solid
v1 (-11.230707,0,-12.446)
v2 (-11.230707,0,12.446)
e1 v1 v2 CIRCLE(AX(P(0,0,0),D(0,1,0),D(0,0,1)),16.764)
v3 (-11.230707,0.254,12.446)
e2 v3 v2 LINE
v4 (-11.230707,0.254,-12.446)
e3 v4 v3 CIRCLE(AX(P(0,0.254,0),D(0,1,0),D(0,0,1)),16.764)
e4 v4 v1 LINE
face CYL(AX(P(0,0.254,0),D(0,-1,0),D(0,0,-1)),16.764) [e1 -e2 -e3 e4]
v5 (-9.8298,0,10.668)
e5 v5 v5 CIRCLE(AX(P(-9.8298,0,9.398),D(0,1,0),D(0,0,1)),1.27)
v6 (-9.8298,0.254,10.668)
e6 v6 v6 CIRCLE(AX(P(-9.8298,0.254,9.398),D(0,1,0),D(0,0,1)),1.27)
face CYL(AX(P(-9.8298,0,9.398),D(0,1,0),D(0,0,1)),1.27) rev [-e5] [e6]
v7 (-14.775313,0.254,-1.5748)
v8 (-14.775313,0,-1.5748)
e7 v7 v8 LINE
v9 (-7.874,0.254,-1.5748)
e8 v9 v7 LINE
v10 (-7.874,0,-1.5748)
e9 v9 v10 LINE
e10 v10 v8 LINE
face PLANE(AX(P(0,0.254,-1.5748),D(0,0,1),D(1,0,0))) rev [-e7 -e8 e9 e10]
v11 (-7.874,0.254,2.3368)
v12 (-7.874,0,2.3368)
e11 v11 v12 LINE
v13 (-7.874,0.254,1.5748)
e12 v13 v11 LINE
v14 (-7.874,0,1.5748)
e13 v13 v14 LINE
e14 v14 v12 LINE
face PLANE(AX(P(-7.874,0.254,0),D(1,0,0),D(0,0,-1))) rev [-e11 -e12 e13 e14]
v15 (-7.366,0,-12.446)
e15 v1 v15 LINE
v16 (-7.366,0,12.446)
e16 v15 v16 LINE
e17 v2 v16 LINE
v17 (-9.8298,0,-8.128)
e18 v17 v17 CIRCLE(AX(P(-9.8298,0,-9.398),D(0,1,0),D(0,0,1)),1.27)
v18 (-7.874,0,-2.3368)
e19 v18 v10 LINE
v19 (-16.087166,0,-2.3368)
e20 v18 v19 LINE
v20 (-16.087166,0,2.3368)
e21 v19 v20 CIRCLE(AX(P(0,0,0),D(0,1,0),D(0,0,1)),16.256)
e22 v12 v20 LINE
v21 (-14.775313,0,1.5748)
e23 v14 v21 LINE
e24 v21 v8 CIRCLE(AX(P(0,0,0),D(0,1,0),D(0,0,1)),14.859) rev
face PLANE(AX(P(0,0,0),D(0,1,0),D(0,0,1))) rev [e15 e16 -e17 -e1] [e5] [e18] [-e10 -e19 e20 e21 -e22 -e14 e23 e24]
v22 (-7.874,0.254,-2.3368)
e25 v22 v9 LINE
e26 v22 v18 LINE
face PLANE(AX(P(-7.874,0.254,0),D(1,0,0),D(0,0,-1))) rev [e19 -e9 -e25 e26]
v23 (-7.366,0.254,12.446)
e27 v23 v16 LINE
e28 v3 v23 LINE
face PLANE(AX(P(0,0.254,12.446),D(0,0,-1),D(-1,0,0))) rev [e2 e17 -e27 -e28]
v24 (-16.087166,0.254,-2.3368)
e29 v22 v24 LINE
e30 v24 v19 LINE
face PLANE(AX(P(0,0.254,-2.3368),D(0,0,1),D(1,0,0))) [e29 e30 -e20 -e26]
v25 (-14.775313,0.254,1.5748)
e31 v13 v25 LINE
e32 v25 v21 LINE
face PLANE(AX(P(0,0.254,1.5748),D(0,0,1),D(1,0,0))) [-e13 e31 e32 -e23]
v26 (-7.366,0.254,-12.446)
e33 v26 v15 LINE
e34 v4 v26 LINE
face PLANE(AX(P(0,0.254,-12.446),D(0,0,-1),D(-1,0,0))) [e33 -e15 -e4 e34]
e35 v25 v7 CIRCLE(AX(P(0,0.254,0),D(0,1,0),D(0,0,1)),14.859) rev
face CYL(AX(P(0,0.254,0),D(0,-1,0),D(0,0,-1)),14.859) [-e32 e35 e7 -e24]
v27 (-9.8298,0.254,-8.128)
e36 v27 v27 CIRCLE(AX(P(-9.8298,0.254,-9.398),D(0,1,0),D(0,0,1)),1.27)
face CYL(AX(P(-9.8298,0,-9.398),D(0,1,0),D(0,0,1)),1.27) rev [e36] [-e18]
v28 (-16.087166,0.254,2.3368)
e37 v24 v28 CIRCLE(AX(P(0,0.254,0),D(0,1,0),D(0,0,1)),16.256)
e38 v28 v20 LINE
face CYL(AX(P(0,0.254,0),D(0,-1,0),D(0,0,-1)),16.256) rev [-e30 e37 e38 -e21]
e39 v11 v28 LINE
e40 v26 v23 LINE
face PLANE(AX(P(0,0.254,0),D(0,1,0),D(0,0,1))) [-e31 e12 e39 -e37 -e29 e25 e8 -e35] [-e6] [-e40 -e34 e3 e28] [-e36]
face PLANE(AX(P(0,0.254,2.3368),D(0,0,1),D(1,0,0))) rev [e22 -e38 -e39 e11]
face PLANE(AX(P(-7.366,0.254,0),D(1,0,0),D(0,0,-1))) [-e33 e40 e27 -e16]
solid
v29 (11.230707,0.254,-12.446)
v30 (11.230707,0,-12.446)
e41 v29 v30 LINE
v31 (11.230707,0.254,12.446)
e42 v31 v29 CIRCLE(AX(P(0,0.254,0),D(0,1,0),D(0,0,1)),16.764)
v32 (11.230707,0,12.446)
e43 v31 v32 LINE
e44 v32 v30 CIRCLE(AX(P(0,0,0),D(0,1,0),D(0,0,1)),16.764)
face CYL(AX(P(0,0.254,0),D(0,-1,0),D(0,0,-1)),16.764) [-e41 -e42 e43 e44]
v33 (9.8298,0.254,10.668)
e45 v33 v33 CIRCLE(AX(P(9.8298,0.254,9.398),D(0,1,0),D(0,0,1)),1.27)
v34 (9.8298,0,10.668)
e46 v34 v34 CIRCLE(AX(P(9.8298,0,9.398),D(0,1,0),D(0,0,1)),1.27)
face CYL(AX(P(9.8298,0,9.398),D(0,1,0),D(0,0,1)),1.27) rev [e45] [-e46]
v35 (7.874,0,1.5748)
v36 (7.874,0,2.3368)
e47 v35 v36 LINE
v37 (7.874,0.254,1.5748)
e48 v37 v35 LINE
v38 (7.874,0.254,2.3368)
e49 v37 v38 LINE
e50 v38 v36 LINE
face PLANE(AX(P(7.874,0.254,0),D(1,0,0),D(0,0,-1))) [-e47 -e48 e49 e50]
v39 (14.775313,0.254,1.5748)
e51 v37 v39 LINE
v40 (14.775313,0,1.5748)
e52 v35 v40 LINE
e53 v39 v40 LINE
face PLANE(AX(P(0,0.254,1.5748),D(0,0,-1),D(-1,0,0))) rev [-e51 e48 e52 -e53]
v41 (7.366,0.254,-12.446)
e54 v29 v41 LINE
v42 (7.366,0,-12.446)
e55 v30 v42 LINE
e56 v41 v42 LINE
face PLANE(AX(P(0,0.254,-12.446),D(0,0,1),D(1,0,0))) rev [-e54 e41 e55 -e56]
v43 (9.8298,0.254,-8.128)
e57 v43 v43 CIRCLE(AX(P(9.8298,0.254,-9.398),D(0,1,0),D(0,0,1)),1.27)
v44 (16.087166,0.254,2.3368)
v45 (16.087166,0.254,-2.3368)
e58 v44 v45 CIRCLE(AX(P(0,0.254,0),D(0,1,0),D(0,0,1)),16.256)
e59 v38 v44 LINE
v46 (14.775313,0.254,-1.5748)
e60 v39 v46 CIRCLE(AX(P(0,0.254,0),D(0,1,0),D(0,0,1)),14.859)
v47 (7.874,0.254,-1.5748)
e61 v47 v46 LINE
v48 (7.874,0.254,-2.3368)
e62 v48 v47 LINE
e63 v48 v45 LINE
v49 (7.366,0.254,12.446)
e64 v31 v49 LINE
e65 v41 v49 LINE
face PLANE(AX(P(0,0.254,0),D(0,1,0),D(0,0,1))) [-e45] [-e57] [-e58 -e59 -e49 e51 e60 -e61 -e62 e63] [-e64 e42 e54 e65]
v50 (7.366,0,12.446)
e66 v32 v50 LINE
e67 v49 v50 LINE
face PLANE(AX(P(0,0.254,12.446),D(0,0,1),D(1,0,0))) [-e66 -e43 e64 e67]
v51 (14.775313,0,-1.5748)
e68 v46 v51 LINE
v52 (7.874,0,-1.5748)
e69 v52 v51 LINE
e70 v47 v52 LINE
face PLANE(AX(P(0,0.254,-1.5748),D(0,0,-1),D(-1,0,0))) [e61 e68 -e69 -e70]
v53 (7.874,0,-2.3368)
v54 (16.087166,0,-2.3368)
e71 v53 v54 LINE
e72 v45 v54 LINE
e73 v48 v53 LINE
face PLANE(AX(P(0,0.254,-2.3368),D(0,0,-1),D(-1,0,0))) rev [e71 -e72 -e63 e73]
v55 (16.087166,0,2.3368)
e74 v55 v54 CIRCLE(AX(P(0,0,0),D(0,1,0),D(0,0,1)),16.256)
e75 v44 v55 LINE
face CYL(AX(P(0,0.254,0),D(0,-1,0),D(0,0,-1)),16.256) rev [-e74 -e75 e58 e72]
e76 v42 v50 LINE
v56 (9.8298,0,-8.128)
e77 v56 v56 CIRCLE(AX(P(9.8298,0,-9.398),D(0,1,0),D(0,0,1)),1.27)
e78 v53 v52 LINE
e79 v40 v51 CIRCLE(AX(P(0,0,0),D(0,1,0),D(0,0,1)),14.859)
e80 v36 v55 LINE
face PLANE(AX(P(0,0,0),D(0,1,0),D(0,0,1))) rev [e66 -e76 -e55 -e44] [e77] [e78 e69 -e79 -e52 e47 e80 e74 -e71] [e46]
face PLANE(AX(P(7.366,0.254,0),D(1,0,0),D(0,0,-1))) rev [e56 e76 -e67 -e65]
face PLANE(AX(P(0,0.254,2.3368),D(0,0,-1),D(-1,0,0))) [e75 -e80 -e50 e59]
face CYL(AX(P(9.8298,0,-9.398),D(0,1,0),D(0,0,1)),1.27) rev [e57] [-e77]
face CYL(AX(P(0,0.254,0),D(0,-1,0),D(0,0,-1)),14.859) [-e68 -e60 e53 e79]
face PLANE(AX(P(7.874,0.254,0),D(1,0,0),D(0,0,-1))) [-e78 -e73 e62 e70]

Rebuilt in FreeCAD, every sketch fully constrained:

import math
import FreeCAD as App
import Part
import Sketcher
Q = App.Units.Quantity

doc = App.newDocument("Part")
body = doc.addObject("PartDesign::Body", "Body")

# Sketch on XZ plane
sketch1 = body.newObject("Sketcher::SketchObject", "Sketch")
sketch1.AttachmentSupport = (doc.getObject("XZ_Plane"), [""])
sketch1.MapMode = "FlatFace"
sketch1.addGeometry(Part.LineSegment(App.Vector(7.4, 12.4, 0), App.Vector(11.2, 12.4, 0)), False)
sketch1.addGeometry(Part.ArcOfCircle(Part.Circle(App.Vector(0, 0, 0), App.Vector(0, 0, 1), 16.8), math.radians(-48), math.radians(48)), False)
sketch1.addGeometry(Part.LineSegment(App.Vector(11.2, -12.4, 0), App.Vector(7.4, -12.4, 0)), False)
sketch1.addGeometry(Part.LineSegment(App.Vector(7.4, -12.4, 0), App.Vector(7.4, 12.4, 0)), False)
sketch1.addGeometry(Part.LineSegment(App.Vector(7.9, 1.6, 0), App.Vector(14.8, 1.6, 0)), False)
sketch1.addGeometry(Part.ArcOfCircle(Part.Circle(App.Vector(0, 0, 0), App.Vector(0, 0, 1), 14.9), math.radians(-6.08), math.radians(6.08)), False)
sketch1.addGeometry(Part.LineSegment(App.Vector(14.8, -1.6, 0), App.Vector(7.9, -1.6, 0)), False)
sketch1.addGeometry(Part.LineSegment(App.Vector(7.9, -1.6, 0), App.Vector(7.9, -2.3, 0)), False)
sketch1.addGeometry(Part.LineSegment(App.Vector(7.9, -2.3, 0), App.Vector(16.1, -2.3, 0)), False)
sketch1.addGeometry(Part.ArcOfCircle(Part.Circle(App.Vector(0, 0, 0), App.Vector(0, 0, 1), 16.3), math.radians(-8.26), math.radians(8.26)), False)
sketch1.addGeometry(Part.LineSegment(App.Vector(16.1, 2.3, 0), App.Vector(7.9, 2.3, 0)), False)
sketch1.addGeometry(Part.LineSegment(App.Vector(7.9, 2.3, 0), App.Vector(7.9, 1.6, 0)), False)
sketch1.addConstraint(Sketcher.Constraint("Coincident", 0, 2, 1, 2))
sketch1.addConstraint(Sketcher.Constraint("Coincident", 1, 1, 2, 1))
sketch1.addConstraint(Sketcher.Constraint("Coincident", 2, 2, 3, 1))
sketch1.addConstraint(Sketcher.Constraint("Coincident", 3, 2, 0, 1))
sketch1.addConstraint(Sketcher.Constraint("Coincident", 4, 2, 5, 2))
sketch1.addConstraint(Sketcher.Constraint("Coincident", 5, 1, 6, 1))
sketch1.addConstraint(Sketcher.Constraint("Coincident", 6, 2, 7, 1))
sketch1.addConstraint(Sketcher.Constraint("Coincident", 7, 2, 8, 1))
sketch1.addConstraint(Sketcher.Constraint("Coincident", 8, 2, 9, 1))
sketch1.addConstraint(Sketcher.Constraint("Coincident", 9, 2, 10, 1))
sketch1.addConstraint(Sketcher.Constraint("Coincident", 10, 2, 11, 1))
sketch1.addConstraint(Sketcher.Constraint("Coincident", 11, 2, 4, 1))
sketch1.addConstraint(Sketcher.Constraint("Horizontal", 0))
sketch1.addConstraint(Sketcher.Constraint("Horizontal", 2))
sketch1.addConstraint(Sketcher.Constraint("Vertical", 3))
sketch1.addConstraint(Sketcher.Constraint("Horizontal", 4))
sketch1.addConstraint(Sketcher.Constraint("Horizontal", 6))
sketch1.addConstraint(Sketcher.Constraint("Vertical", 7))
sketch1.addConstraint(Sketcher.Constraint("Horizontal", 8))
sketch1.addConstraint(Sketcher.Constraint("Horizontal", 10))
sketch1.addConstraint(Sketcher.Constraint("Vertical", 11))
sketch1.addConstraint(Sketcher.Constraint("Coincident", 1, 3, -1, 1))
sketch1.addConstraint(Sketcher.Constraint("Coincident", 5, 3, -1, 1))
sketch1.addConstraint(Sketcher.Constraint("Coincident", 9, 3, -1, 1))
sketch1.addConstraint(Sketcher.Constraint("Symmetric", 7, 2, 10, 2, -1))
sketch1.addConstraint(Sketcher.Constraint("Vertical", 0, 2, 1, 1))
sketch1.addConstraint(Sketcher.Constraint("Vertical", 4, 2, 5, 1))
sketch1.addConstraint(Sketcher.Constraint("Radius", 1, Q("0.66 in")))
sketch1.addConstraint(Sketcher.Constraint("Radius", 9, Q("0.64 in")))
sketch1.addConstraint(Sketcher.Constraint("Radius", 5, Q("0.585 in")))
sketch1.addConstraint(Sketcher.Constraint("DistanceY", 3, 1, 3, 2, Q("0.98 in")))
sketch1.addConstraint(Sketcher.Constraint("DistanceY", 7, 2, 7, 1, Q("0.03 in")))
sketch1.addConstraint(Sketcher.Constraint("DistanceX", -1, 1, 2, 2, Q("0.29 in")))
sketch1.addConstraint(Sketcher.Constraint("DistanceX", -1, 1, 6, 2, Q("0.31 in")))
sketch1.addConstraint(Sketcher.Constraint("DistanceY", -1, 1, 4, 2, Q("0.062 in")))
pad1 = body.newObject("PartDesign::Pad", "Pad")
pad1.Profile = sketch1
pad1.Length = Q("0.01 in")
pad1.Reversed = True
body2 = doc.addObject("PartDesign::Body", "Body001")

# Sketch on XZ plane
sketch2 = body2.newObject("Sketcher::SketchObject", "Sketch001")
sketch2.AttachmentSupport = (doc.getObject("XZ_Plane001"), [""])
sketch2.MapMode = "FlatFace"
sketch2.addGeometry(Part.LineSegment(App.Vector(-7.4, -12.4, 0), App.Vector(-11.2, -12.4, 0)), False)
sketch2.addGeometry(Part.ArcOfCircle(Part.Circle(App.Vector(0, 0, 0), App.Vector(0, 0, 1), 16.8), math.radians(132), math.radians(228)), False)
sketch2.addGeometry(Part.LineSegment(App.Vector(-11.2, 12.4, 0), App.Vector(-7.4, 12.4, 0)), False)
sketch2.addGeometry(Part.LineSegment(App.Vector(-7.4, 12.4, 0), App.Vector(-7.4, -12.4, 0)), False)
sketch2.addGeometry(Part.LineSegment(App.Vector(-14.8, 1.6, 0), App.Vector(-7.9, 1.6, 0)), False)
sketch2.addGeometry(Part.LineSegment(App.Vector(-7.9, 1.6, 0), App.Vector(-7.9, 2.3, 0)), False)
sketch2.addGeometry(Part.LineSegment(App.Vector(-7.9, 2.3, 0), App.Vector(-16.1, 2.3, 0)), False)
sketch2.addGeometry(Part.ArcOfCircle(Part.Circle(App.Vector(0, 0, 0), App.Vector(0, 0, 1), 16.3), math.radians(171.74), math.radians(188.26)), False)
sketch2.addGeometry(Part.LineSegment(App.Vector(-16.1, -2.3, 0), App.Vector(-7.9, -2.3, 0)), False)
sketch2.addGeometry(Part.LineSegment(App.Vector(-7.9, -2.3, 0), App.Vector(-7.9, -1.6, 0)), False)
sketch2.addGeometry(Part.LineSegment(App.Vector(-7.9, -1.6, 0), App.Vector(-14.8, -1.6, 0)), False)
sketch2.addGeometry(Part.ArcOfCircle(Part.Circle(App.Vector(0, 0, 0), App.Vector(0, 0, 1), 14.9), math.radians(173.92), math.radians(186.08)), False)
sketch2.addConstraint(Sketcher.Constraint("Coincident", 0, 2, 1, 2))
sketch2.addConstraint(Sketcher.Constraint("Coincident", 1, 1, 2, 1))
sketch2.addConstraint(Sketcher.Constraint("Coincident", 2, 2, 3, 1))
sketch2.addConstraint(Sketcher.Constraint("Coincident", 3, 2, 0, 1))
sketch2.addConstraint(Sketcher.Constraint("Coincident", 4, 2, 5, 1))
sketch2.addConstraint(Sketcher.Constraint("Coincident", 5, 2, 6, 1))
sketch2.addConstraint(Sketcher.Constraint("Coincident", 6, 2, 7, 1))
sketch2.addConstraint(Sketcher.Constraint("Coincident", 7, 2, 8, 1))
sketch2.addConstraint(Sketcher.Constraint("Coincident", 8, 2, 9, 1))
sketch2.addConstraint(Sketcher.Constraint("Coincident", 9, 2, 10, 1))
sketch2.addConstraint(Sketcher.Constraint("Coincident", 10, 2, 11, 2))
sketch2.addConstraint(Sketcher.Constraint("Coincident", 11, 1, 4, 1))
sketch2.addConstraint(Sketcher.Constraint("Horizontal", 0))
sketch2.addConstraint(Sketcher.Constraint("Horizontal", 2))
sketch2.addConstraint(Sketcher.Constraint("Vertical", 3))
sketch2.addConstraint(Sketcher.Constraint("Horizontal", 4))
sketch2.addConstraint(Sketcher.Constraint("Vertical", 5))
sketch2.addConstraint(Sketcher.Constraint("Horizontal", 6))
sketch2.addConstraint(Sketcher.Constraint("Horizontal", 8))
sketch2.addConstraint(Sketcher.Constraint("Vertical", 9))
sketch2.addConstraint(Sketcher.Constraint("Horizontal", 10))
sketch2.addConstraint(Sketcher.Constraint("Coincident", 1, 3, -1, 1))
sketch2.addConstraint(Sketcher.Constraint("Coincident", 7, 3, -1, 1))
sketch2.addConstraint(Sketcher.Constraint("Coincident", 11, 3, -1, 1))
sketch2.addConstraint(Sketcher.Constraint("Symmetric", 5, 2, 8, 2, -1))
sketch2.addConstraint(Sketcher.Constraint("Vertical", 0, 2, 1, 1))
sketch2.addConstraint(Sketcher.Constraint("Vertical", 10, 2, 11, 1))
sketch2.addConstraint(Sketcher.Constraint("Radius", 1, Q("0.66 in")))
sketch2.addConstraint(Sketcher.Constraint("Radius", 7, Q("0.64 in")))
sketch2.addConstraint(Sketcher.Constraint("Radius", 11, Q("0.585 in")))
sketch2.addConstraint(Sketcher.Constraint("DistanceY", 3, 2, 3, 1, Q("0.98 in")))
sketch2.addConstraint(Sketcher.Constraint("DistanceY", 5, 1, 5, 2, Q("0.03 in")))
sketch2.addConstraint(Sketcher.Constraint("DistanceX", 2, 2, -1, 1, Q("0.29 in")))
sketch2.addConstraint(Sketcher.Constraint("DistanceX", 4, 2, -1, 1, Q("0.31 in")))
sketch2.addConstraint(Sketcher.Constraint("DistanceY", -1, 1, 4, 2, Q("0.062 in")))
pad2 = body2.newObject("PartDesign::Pad", "Pad001")
pad2.Profile = sketch2
pad2.Length = Q("0.01 in")
pad2.Reversed = True
body3 = doc.addObject("PartDesign::Body", "Body002")
body3.AllowCompound = True

# Sketch on XZ plane
sketch3 = body3.newObject("Sketcher::SketchObject", "Sketch002")
sketch3.AttachmentSupport = (doc.getObject("XZ_Plane002"), [""])
sketch3.MapMode = "FlatFace"
sketch3.AttachmentOffset = App.Placement(App.Vector(0, 0, -0.01 * 25.4), App.Rotation())
sketch3.addGeometry(Part.Circle(App.Vector(9.8, 9.4, 0), App.Vector(0, 0, 1), 1.3), False)
sketch3.addGeometry(Part.Circle(App.Vector(9.8, -9.4, 0), App.Vector(0, 0, 1), 1.3), False)
sketch3.addGeometry(Part.Circle(App.Vector(-9.8, 9.4, 0), App.Vector(0, 0, 1), 1.3), False)
sketch3.addGeometry(Part.Circle(App.Vector(-9.8, -9.4, 0), App.Vector(0, 0, 1), 1.3), False)
sketch3.addConstraint(Sketcher.Constraint("Equal", 0, 1))
sketch3.addConstraint(Sketcher.Constraint("Equal", 1, 2))
sketch3.addConstraint(Sketcher.Constraint("Equal", 2, 3))
sketch3.addConstraint(Sketcher.Constraint("Symmetric", 1, 3, 2, 3, -1, 1))
sketch3.addConstraint(Sketcher.Constraint("Symmetric", 0, 3, 3, 3, -1, 1))
sketch3.addConstraint(Sketcher.Constraint("Symmetric", 0, 3, 2, 3, -2))
sketch3.addConstraint(Sketcher.Constraint("Diameter", 0, Q("0.1 in")))
sketch3.addConstraint(Sketcher.Constraint("DistanceY", -1, 1, 0, 3, Q("0.37 in")))
sketch3.addConstraint(Sketcher.Constraint("DistanceX", -1, 1, 0, 3, Q("0.387 in")))
pad3 = body3.newObject("PartDesign::Pad", "Pad002")
pad3.Profile = sketch3
pad3.Length = 1.254
doc.recompute()

body4 = doc.addObject("PartDesign::Body", "Body003")
body4.BaseFeature = body3
boolean = body.newObject("PartDesign::Boolean", "Boolean")
boolean.Type = "Cut"
boolean.addObjects([body4])
doc.recompute()

boolean2 = body2.newObject("PartDesign::Boolean", "Boolean001")
boolean2.Type = "Cut"
boolean2.addObjects([body3])

doc.recompute()
